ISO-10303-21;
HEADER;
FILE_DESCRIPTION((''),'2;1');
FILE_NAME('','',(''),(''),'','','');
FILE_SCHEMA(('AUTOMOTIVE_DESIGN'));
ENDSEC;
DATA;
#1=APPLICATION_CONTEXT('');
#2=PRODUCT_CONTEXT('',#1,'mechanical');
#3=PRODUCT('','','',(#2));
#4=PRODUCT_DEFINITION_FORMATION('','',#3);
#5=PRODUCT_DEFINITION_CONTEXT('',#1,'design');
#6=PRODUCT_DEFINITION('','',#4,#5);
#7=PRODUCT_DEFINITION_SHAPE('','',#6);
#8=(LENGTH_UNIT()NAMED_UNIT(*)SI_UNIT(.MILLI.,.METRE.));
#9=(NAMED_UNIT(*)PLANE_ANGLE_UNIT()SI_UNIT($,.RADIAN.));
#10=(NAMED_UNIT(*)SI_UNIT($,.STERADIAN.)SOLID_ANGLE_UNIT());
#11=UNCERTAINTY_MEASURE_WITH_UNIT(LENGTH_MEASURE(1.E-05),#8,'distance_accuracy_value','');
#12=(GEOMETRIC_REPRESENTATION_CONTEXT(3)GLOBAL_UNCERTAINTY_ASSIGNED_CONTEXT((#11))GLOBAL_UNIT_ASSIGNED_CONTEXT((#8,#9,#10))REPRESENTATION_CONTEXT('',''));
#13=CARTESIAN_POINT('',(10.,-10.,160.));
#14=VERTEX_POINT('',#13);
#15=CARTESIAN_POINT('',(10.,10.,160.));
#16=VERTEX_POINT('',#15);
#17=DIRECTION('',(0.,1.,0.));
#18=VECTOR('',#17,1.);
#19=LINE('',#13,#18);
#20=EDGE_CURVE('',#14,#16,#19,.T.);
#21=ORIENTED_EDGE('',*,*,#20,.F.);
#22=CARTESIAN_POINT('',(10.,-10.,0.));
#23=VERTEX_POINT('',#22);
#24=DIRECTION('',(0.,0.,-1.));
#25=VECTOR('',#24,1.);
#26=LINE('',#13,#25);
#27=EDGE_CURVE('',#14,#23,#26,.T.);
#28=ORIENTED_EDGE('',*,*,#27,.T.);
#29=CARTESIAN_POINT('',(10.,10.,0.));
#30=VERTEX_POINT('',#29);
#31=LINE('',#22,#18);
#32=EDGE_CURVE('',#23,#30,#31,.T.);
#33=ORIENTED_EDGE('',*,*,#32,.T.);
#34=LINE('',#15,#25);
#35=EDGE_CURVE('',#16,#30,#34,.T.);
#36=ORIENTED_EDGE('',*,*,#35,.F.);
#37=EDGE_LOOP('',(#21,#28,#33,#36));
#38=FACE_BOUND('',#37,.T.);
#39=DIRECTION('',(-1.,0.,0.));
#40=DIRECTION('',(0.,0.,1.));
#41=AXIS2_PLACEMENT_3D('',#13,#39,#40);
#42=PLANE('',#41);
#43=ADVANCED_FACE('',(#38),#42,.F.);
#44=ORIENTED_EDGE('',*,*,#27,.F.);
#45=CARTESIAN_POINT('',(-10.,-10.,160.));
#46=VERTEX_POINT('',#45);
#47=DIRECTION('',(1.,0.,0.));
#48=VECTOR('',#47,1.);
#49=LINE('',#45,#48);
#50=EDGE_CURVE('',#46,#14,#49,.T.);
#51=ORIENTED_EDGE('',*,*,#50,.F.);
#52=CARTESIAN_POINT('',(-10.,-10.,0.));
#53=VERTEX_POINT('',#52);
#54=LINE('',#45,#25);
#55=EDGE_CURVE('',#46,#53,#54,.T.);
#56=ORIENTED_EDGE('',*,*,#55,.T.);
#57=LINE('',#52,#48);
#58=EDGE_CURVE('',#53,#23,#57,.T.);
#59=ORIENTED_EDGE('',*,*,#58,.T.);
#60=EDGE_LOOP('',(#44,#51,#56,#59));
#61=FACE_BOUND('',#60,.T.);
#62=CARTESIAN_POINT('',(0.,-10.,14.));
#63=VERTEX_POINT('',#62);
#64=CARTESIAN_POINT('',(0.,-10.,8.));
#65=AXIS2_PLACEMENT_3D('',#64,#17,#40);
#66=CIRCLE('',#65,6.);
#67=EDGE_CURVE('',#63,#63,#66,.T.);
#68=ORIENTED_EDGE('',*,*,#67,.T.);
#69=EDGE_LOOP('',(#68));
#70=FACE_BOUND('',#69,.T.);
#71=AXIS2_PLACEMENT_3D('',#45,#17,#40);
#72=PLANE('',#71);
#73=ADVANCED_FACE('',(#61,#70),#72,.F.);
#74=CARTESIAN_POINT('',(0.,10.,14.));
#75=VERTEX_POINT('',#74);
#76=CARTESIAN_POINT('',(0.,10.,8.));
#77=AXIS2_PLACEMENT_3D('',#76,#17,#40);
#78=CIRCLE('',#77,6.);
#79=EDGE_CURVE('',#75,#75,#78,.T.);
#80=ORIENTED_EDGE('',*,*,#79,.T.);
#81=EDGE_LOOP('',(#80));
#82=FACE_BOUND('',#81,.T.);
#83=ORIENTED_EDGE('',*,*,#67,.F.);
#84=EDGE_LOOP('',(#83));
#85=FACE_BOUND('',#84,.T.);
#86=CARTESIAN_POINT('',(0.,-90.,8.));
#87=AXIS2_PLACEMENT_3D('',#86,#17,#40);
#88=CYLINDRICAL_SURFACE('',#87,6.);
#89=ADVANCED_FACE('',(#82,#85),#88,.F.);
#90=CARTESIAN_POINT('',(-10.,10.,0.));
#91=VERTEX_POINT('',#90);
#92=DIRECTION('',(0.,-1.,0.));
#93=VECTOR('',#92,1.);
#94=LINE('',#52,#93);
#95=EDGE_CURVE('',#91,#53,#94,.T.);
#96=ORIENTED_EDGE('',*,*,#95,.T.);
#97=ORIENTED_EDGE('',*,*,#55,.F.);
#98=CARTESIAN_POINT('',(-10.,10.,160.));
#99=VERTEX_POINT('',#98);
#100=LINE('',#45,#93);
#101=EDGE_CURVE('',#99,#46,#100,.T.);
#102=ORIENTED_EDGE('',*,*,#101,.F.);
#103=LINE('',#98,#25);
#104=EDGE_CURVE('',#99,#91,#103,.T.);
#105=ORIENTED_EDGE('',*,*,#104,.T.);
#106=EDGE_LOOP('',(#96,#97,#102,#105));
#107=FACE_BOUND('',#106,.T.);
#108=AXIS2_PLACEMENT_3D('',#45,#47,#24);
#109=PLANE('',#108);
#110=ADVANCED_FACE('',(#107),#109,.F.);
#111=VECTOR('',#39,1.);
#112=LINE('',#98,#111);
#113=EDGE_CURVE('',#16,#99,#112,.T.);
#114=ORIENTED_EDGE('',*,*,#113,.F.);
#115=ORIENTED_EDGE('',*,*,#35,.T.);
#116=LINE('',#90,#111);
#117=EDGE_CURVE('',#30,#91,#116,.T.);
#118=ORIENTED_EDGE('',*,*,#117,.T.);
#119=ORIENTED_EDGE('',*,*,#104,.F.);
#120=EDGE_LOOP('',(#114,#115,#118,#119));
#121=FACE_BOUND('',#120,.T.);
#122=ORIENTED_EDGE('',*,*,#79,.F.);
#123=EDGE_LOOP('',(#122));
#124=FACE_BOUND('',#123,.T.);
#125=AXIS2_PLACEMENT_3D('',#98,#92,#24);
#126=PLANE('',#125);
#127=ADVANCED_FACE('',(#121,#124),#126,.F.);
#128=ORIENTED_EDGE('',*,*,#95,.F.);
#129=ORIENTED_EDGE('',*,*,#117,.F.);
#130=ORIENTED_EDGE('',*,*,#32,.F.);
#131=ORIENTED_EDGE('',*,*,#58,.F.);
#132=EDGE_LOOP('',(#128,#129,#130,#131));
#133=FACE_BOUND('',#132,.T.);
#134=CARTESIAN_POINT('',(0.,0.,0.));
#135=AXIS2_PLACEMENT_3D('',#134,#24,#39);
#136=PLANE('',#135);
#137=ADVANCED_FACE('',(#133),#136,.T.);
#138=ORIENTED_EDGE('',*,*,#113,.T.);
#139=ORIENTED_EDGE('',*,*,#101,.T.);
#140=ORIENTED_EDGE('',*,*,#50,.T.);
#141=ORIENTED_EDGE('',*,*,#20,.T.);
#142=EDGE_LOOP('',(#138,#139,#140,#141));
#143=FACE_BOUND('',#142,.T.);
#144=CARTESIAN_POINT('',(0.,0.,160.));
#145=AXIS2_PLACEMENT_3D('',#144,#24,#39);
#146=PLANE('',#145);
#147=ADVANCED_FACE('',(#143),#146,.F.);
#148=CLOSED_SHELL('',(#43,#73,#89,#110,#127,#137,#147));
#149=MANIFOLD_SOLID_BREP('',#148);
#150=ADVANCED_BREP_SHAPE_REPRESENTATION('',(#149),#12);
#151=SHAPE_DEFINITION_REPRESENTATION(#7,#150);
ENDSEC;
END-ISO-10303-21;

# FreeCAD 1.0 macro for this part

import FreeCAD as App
import Part
import Sketcher
from FreeCAD import Vector


def add_polygon(sketch, points):
    """Adds a closed chain of lines whose ends are joined by coincident constraints."""
    first, n = sketch.GeometryCount, len(points)
    for a, b in zip(points, points[1:] + points[:1]):
        sketch.addGeometry(Part.LineSegment(App.Vector(*a, 0), App.Vector(*b, 0)), False)
    for i in range(n):
        sketch.addConstraint(Sketcher.Constraint("Coincident", first + i, 2, first + (i + 1) % n, 1))

doc = App.newDocument("Part")
body = doc.addObject("PartDesign::Body", "Body")

# Sketch on XY plane
sketch1 = doc.addObject("Sketcher::SketchObject", "Sketch")
body.addObject(sketch1)
sketch1.AttachmentSupport = (doc.XY_Plane, [""])
sketch1.MapMode = "FlatFace"
add_polygon(sketch1, [(-10, 10), (-10, -10), (10, -10), (10, 10)])  # lines 0-3
sketch1.addConstraint(Sketcher.Constraint("Vertical", 0))
sketch1.addConstraint(Sketcher.Constraint("Horizontal", 1))
sketch1.addConstraint(Sketcher.Constraint("Vertical", 2))
sketch1.addConstraint(Sketcher.Constraint("Horizontal", 3))
sketch1.addConstraint(Sketcher.Constraint("Symmetric", 0, 2, 2, 2, -1, 1))
sketch1.addConstraint(Sketcher.Constraint("Equal", 3, 0))
sketch1.addConstraint(Sketcher.Constraint("DistanceX", 1, 1, 1, 2, 20.0))
pad1 = doc.addObject("PartDesign::Pad", "Pad")
body.addObject(pad1)
pad1.Profile = sketch1
pad1.Length = 160

# Sketch on XZ plane
sketch2 = doc.addObject("Sketcher::SketchObject", "Sketch001")
body.addObject(sketch2)
sketch2.AttachmentSupport = (doc.XZ_Plane, [""])
sketch2.MapMode = "FlatFace"
sketch2.AttachmentOffset = App.Placement(Vector(0, 0, -10), App.Rotation())
sketch2.addGeometry(Part.Circle(Vector(0, 8, 0), Vector(0, 0, 1), 6), False)
sketch2.addConstraint(Sketcher.Constraint("PointOnObject", 0, 3, -2))
sketch2.addConstraint(Sketcher.Constraint("Diameter", 0, 12.0))
sketch2.addConstraint(Sketcher.Constraint("DistanceY", -1, 1, 0, 3, 8.0))
pocket1 = doc.addObject("PartDesign::Pocket", "Pocket")
body.addObject(pocket1)
pocket1.Profile = sketch2
pocket1.Length = 100
pocket1.Reversed = True

doc.recompute()
